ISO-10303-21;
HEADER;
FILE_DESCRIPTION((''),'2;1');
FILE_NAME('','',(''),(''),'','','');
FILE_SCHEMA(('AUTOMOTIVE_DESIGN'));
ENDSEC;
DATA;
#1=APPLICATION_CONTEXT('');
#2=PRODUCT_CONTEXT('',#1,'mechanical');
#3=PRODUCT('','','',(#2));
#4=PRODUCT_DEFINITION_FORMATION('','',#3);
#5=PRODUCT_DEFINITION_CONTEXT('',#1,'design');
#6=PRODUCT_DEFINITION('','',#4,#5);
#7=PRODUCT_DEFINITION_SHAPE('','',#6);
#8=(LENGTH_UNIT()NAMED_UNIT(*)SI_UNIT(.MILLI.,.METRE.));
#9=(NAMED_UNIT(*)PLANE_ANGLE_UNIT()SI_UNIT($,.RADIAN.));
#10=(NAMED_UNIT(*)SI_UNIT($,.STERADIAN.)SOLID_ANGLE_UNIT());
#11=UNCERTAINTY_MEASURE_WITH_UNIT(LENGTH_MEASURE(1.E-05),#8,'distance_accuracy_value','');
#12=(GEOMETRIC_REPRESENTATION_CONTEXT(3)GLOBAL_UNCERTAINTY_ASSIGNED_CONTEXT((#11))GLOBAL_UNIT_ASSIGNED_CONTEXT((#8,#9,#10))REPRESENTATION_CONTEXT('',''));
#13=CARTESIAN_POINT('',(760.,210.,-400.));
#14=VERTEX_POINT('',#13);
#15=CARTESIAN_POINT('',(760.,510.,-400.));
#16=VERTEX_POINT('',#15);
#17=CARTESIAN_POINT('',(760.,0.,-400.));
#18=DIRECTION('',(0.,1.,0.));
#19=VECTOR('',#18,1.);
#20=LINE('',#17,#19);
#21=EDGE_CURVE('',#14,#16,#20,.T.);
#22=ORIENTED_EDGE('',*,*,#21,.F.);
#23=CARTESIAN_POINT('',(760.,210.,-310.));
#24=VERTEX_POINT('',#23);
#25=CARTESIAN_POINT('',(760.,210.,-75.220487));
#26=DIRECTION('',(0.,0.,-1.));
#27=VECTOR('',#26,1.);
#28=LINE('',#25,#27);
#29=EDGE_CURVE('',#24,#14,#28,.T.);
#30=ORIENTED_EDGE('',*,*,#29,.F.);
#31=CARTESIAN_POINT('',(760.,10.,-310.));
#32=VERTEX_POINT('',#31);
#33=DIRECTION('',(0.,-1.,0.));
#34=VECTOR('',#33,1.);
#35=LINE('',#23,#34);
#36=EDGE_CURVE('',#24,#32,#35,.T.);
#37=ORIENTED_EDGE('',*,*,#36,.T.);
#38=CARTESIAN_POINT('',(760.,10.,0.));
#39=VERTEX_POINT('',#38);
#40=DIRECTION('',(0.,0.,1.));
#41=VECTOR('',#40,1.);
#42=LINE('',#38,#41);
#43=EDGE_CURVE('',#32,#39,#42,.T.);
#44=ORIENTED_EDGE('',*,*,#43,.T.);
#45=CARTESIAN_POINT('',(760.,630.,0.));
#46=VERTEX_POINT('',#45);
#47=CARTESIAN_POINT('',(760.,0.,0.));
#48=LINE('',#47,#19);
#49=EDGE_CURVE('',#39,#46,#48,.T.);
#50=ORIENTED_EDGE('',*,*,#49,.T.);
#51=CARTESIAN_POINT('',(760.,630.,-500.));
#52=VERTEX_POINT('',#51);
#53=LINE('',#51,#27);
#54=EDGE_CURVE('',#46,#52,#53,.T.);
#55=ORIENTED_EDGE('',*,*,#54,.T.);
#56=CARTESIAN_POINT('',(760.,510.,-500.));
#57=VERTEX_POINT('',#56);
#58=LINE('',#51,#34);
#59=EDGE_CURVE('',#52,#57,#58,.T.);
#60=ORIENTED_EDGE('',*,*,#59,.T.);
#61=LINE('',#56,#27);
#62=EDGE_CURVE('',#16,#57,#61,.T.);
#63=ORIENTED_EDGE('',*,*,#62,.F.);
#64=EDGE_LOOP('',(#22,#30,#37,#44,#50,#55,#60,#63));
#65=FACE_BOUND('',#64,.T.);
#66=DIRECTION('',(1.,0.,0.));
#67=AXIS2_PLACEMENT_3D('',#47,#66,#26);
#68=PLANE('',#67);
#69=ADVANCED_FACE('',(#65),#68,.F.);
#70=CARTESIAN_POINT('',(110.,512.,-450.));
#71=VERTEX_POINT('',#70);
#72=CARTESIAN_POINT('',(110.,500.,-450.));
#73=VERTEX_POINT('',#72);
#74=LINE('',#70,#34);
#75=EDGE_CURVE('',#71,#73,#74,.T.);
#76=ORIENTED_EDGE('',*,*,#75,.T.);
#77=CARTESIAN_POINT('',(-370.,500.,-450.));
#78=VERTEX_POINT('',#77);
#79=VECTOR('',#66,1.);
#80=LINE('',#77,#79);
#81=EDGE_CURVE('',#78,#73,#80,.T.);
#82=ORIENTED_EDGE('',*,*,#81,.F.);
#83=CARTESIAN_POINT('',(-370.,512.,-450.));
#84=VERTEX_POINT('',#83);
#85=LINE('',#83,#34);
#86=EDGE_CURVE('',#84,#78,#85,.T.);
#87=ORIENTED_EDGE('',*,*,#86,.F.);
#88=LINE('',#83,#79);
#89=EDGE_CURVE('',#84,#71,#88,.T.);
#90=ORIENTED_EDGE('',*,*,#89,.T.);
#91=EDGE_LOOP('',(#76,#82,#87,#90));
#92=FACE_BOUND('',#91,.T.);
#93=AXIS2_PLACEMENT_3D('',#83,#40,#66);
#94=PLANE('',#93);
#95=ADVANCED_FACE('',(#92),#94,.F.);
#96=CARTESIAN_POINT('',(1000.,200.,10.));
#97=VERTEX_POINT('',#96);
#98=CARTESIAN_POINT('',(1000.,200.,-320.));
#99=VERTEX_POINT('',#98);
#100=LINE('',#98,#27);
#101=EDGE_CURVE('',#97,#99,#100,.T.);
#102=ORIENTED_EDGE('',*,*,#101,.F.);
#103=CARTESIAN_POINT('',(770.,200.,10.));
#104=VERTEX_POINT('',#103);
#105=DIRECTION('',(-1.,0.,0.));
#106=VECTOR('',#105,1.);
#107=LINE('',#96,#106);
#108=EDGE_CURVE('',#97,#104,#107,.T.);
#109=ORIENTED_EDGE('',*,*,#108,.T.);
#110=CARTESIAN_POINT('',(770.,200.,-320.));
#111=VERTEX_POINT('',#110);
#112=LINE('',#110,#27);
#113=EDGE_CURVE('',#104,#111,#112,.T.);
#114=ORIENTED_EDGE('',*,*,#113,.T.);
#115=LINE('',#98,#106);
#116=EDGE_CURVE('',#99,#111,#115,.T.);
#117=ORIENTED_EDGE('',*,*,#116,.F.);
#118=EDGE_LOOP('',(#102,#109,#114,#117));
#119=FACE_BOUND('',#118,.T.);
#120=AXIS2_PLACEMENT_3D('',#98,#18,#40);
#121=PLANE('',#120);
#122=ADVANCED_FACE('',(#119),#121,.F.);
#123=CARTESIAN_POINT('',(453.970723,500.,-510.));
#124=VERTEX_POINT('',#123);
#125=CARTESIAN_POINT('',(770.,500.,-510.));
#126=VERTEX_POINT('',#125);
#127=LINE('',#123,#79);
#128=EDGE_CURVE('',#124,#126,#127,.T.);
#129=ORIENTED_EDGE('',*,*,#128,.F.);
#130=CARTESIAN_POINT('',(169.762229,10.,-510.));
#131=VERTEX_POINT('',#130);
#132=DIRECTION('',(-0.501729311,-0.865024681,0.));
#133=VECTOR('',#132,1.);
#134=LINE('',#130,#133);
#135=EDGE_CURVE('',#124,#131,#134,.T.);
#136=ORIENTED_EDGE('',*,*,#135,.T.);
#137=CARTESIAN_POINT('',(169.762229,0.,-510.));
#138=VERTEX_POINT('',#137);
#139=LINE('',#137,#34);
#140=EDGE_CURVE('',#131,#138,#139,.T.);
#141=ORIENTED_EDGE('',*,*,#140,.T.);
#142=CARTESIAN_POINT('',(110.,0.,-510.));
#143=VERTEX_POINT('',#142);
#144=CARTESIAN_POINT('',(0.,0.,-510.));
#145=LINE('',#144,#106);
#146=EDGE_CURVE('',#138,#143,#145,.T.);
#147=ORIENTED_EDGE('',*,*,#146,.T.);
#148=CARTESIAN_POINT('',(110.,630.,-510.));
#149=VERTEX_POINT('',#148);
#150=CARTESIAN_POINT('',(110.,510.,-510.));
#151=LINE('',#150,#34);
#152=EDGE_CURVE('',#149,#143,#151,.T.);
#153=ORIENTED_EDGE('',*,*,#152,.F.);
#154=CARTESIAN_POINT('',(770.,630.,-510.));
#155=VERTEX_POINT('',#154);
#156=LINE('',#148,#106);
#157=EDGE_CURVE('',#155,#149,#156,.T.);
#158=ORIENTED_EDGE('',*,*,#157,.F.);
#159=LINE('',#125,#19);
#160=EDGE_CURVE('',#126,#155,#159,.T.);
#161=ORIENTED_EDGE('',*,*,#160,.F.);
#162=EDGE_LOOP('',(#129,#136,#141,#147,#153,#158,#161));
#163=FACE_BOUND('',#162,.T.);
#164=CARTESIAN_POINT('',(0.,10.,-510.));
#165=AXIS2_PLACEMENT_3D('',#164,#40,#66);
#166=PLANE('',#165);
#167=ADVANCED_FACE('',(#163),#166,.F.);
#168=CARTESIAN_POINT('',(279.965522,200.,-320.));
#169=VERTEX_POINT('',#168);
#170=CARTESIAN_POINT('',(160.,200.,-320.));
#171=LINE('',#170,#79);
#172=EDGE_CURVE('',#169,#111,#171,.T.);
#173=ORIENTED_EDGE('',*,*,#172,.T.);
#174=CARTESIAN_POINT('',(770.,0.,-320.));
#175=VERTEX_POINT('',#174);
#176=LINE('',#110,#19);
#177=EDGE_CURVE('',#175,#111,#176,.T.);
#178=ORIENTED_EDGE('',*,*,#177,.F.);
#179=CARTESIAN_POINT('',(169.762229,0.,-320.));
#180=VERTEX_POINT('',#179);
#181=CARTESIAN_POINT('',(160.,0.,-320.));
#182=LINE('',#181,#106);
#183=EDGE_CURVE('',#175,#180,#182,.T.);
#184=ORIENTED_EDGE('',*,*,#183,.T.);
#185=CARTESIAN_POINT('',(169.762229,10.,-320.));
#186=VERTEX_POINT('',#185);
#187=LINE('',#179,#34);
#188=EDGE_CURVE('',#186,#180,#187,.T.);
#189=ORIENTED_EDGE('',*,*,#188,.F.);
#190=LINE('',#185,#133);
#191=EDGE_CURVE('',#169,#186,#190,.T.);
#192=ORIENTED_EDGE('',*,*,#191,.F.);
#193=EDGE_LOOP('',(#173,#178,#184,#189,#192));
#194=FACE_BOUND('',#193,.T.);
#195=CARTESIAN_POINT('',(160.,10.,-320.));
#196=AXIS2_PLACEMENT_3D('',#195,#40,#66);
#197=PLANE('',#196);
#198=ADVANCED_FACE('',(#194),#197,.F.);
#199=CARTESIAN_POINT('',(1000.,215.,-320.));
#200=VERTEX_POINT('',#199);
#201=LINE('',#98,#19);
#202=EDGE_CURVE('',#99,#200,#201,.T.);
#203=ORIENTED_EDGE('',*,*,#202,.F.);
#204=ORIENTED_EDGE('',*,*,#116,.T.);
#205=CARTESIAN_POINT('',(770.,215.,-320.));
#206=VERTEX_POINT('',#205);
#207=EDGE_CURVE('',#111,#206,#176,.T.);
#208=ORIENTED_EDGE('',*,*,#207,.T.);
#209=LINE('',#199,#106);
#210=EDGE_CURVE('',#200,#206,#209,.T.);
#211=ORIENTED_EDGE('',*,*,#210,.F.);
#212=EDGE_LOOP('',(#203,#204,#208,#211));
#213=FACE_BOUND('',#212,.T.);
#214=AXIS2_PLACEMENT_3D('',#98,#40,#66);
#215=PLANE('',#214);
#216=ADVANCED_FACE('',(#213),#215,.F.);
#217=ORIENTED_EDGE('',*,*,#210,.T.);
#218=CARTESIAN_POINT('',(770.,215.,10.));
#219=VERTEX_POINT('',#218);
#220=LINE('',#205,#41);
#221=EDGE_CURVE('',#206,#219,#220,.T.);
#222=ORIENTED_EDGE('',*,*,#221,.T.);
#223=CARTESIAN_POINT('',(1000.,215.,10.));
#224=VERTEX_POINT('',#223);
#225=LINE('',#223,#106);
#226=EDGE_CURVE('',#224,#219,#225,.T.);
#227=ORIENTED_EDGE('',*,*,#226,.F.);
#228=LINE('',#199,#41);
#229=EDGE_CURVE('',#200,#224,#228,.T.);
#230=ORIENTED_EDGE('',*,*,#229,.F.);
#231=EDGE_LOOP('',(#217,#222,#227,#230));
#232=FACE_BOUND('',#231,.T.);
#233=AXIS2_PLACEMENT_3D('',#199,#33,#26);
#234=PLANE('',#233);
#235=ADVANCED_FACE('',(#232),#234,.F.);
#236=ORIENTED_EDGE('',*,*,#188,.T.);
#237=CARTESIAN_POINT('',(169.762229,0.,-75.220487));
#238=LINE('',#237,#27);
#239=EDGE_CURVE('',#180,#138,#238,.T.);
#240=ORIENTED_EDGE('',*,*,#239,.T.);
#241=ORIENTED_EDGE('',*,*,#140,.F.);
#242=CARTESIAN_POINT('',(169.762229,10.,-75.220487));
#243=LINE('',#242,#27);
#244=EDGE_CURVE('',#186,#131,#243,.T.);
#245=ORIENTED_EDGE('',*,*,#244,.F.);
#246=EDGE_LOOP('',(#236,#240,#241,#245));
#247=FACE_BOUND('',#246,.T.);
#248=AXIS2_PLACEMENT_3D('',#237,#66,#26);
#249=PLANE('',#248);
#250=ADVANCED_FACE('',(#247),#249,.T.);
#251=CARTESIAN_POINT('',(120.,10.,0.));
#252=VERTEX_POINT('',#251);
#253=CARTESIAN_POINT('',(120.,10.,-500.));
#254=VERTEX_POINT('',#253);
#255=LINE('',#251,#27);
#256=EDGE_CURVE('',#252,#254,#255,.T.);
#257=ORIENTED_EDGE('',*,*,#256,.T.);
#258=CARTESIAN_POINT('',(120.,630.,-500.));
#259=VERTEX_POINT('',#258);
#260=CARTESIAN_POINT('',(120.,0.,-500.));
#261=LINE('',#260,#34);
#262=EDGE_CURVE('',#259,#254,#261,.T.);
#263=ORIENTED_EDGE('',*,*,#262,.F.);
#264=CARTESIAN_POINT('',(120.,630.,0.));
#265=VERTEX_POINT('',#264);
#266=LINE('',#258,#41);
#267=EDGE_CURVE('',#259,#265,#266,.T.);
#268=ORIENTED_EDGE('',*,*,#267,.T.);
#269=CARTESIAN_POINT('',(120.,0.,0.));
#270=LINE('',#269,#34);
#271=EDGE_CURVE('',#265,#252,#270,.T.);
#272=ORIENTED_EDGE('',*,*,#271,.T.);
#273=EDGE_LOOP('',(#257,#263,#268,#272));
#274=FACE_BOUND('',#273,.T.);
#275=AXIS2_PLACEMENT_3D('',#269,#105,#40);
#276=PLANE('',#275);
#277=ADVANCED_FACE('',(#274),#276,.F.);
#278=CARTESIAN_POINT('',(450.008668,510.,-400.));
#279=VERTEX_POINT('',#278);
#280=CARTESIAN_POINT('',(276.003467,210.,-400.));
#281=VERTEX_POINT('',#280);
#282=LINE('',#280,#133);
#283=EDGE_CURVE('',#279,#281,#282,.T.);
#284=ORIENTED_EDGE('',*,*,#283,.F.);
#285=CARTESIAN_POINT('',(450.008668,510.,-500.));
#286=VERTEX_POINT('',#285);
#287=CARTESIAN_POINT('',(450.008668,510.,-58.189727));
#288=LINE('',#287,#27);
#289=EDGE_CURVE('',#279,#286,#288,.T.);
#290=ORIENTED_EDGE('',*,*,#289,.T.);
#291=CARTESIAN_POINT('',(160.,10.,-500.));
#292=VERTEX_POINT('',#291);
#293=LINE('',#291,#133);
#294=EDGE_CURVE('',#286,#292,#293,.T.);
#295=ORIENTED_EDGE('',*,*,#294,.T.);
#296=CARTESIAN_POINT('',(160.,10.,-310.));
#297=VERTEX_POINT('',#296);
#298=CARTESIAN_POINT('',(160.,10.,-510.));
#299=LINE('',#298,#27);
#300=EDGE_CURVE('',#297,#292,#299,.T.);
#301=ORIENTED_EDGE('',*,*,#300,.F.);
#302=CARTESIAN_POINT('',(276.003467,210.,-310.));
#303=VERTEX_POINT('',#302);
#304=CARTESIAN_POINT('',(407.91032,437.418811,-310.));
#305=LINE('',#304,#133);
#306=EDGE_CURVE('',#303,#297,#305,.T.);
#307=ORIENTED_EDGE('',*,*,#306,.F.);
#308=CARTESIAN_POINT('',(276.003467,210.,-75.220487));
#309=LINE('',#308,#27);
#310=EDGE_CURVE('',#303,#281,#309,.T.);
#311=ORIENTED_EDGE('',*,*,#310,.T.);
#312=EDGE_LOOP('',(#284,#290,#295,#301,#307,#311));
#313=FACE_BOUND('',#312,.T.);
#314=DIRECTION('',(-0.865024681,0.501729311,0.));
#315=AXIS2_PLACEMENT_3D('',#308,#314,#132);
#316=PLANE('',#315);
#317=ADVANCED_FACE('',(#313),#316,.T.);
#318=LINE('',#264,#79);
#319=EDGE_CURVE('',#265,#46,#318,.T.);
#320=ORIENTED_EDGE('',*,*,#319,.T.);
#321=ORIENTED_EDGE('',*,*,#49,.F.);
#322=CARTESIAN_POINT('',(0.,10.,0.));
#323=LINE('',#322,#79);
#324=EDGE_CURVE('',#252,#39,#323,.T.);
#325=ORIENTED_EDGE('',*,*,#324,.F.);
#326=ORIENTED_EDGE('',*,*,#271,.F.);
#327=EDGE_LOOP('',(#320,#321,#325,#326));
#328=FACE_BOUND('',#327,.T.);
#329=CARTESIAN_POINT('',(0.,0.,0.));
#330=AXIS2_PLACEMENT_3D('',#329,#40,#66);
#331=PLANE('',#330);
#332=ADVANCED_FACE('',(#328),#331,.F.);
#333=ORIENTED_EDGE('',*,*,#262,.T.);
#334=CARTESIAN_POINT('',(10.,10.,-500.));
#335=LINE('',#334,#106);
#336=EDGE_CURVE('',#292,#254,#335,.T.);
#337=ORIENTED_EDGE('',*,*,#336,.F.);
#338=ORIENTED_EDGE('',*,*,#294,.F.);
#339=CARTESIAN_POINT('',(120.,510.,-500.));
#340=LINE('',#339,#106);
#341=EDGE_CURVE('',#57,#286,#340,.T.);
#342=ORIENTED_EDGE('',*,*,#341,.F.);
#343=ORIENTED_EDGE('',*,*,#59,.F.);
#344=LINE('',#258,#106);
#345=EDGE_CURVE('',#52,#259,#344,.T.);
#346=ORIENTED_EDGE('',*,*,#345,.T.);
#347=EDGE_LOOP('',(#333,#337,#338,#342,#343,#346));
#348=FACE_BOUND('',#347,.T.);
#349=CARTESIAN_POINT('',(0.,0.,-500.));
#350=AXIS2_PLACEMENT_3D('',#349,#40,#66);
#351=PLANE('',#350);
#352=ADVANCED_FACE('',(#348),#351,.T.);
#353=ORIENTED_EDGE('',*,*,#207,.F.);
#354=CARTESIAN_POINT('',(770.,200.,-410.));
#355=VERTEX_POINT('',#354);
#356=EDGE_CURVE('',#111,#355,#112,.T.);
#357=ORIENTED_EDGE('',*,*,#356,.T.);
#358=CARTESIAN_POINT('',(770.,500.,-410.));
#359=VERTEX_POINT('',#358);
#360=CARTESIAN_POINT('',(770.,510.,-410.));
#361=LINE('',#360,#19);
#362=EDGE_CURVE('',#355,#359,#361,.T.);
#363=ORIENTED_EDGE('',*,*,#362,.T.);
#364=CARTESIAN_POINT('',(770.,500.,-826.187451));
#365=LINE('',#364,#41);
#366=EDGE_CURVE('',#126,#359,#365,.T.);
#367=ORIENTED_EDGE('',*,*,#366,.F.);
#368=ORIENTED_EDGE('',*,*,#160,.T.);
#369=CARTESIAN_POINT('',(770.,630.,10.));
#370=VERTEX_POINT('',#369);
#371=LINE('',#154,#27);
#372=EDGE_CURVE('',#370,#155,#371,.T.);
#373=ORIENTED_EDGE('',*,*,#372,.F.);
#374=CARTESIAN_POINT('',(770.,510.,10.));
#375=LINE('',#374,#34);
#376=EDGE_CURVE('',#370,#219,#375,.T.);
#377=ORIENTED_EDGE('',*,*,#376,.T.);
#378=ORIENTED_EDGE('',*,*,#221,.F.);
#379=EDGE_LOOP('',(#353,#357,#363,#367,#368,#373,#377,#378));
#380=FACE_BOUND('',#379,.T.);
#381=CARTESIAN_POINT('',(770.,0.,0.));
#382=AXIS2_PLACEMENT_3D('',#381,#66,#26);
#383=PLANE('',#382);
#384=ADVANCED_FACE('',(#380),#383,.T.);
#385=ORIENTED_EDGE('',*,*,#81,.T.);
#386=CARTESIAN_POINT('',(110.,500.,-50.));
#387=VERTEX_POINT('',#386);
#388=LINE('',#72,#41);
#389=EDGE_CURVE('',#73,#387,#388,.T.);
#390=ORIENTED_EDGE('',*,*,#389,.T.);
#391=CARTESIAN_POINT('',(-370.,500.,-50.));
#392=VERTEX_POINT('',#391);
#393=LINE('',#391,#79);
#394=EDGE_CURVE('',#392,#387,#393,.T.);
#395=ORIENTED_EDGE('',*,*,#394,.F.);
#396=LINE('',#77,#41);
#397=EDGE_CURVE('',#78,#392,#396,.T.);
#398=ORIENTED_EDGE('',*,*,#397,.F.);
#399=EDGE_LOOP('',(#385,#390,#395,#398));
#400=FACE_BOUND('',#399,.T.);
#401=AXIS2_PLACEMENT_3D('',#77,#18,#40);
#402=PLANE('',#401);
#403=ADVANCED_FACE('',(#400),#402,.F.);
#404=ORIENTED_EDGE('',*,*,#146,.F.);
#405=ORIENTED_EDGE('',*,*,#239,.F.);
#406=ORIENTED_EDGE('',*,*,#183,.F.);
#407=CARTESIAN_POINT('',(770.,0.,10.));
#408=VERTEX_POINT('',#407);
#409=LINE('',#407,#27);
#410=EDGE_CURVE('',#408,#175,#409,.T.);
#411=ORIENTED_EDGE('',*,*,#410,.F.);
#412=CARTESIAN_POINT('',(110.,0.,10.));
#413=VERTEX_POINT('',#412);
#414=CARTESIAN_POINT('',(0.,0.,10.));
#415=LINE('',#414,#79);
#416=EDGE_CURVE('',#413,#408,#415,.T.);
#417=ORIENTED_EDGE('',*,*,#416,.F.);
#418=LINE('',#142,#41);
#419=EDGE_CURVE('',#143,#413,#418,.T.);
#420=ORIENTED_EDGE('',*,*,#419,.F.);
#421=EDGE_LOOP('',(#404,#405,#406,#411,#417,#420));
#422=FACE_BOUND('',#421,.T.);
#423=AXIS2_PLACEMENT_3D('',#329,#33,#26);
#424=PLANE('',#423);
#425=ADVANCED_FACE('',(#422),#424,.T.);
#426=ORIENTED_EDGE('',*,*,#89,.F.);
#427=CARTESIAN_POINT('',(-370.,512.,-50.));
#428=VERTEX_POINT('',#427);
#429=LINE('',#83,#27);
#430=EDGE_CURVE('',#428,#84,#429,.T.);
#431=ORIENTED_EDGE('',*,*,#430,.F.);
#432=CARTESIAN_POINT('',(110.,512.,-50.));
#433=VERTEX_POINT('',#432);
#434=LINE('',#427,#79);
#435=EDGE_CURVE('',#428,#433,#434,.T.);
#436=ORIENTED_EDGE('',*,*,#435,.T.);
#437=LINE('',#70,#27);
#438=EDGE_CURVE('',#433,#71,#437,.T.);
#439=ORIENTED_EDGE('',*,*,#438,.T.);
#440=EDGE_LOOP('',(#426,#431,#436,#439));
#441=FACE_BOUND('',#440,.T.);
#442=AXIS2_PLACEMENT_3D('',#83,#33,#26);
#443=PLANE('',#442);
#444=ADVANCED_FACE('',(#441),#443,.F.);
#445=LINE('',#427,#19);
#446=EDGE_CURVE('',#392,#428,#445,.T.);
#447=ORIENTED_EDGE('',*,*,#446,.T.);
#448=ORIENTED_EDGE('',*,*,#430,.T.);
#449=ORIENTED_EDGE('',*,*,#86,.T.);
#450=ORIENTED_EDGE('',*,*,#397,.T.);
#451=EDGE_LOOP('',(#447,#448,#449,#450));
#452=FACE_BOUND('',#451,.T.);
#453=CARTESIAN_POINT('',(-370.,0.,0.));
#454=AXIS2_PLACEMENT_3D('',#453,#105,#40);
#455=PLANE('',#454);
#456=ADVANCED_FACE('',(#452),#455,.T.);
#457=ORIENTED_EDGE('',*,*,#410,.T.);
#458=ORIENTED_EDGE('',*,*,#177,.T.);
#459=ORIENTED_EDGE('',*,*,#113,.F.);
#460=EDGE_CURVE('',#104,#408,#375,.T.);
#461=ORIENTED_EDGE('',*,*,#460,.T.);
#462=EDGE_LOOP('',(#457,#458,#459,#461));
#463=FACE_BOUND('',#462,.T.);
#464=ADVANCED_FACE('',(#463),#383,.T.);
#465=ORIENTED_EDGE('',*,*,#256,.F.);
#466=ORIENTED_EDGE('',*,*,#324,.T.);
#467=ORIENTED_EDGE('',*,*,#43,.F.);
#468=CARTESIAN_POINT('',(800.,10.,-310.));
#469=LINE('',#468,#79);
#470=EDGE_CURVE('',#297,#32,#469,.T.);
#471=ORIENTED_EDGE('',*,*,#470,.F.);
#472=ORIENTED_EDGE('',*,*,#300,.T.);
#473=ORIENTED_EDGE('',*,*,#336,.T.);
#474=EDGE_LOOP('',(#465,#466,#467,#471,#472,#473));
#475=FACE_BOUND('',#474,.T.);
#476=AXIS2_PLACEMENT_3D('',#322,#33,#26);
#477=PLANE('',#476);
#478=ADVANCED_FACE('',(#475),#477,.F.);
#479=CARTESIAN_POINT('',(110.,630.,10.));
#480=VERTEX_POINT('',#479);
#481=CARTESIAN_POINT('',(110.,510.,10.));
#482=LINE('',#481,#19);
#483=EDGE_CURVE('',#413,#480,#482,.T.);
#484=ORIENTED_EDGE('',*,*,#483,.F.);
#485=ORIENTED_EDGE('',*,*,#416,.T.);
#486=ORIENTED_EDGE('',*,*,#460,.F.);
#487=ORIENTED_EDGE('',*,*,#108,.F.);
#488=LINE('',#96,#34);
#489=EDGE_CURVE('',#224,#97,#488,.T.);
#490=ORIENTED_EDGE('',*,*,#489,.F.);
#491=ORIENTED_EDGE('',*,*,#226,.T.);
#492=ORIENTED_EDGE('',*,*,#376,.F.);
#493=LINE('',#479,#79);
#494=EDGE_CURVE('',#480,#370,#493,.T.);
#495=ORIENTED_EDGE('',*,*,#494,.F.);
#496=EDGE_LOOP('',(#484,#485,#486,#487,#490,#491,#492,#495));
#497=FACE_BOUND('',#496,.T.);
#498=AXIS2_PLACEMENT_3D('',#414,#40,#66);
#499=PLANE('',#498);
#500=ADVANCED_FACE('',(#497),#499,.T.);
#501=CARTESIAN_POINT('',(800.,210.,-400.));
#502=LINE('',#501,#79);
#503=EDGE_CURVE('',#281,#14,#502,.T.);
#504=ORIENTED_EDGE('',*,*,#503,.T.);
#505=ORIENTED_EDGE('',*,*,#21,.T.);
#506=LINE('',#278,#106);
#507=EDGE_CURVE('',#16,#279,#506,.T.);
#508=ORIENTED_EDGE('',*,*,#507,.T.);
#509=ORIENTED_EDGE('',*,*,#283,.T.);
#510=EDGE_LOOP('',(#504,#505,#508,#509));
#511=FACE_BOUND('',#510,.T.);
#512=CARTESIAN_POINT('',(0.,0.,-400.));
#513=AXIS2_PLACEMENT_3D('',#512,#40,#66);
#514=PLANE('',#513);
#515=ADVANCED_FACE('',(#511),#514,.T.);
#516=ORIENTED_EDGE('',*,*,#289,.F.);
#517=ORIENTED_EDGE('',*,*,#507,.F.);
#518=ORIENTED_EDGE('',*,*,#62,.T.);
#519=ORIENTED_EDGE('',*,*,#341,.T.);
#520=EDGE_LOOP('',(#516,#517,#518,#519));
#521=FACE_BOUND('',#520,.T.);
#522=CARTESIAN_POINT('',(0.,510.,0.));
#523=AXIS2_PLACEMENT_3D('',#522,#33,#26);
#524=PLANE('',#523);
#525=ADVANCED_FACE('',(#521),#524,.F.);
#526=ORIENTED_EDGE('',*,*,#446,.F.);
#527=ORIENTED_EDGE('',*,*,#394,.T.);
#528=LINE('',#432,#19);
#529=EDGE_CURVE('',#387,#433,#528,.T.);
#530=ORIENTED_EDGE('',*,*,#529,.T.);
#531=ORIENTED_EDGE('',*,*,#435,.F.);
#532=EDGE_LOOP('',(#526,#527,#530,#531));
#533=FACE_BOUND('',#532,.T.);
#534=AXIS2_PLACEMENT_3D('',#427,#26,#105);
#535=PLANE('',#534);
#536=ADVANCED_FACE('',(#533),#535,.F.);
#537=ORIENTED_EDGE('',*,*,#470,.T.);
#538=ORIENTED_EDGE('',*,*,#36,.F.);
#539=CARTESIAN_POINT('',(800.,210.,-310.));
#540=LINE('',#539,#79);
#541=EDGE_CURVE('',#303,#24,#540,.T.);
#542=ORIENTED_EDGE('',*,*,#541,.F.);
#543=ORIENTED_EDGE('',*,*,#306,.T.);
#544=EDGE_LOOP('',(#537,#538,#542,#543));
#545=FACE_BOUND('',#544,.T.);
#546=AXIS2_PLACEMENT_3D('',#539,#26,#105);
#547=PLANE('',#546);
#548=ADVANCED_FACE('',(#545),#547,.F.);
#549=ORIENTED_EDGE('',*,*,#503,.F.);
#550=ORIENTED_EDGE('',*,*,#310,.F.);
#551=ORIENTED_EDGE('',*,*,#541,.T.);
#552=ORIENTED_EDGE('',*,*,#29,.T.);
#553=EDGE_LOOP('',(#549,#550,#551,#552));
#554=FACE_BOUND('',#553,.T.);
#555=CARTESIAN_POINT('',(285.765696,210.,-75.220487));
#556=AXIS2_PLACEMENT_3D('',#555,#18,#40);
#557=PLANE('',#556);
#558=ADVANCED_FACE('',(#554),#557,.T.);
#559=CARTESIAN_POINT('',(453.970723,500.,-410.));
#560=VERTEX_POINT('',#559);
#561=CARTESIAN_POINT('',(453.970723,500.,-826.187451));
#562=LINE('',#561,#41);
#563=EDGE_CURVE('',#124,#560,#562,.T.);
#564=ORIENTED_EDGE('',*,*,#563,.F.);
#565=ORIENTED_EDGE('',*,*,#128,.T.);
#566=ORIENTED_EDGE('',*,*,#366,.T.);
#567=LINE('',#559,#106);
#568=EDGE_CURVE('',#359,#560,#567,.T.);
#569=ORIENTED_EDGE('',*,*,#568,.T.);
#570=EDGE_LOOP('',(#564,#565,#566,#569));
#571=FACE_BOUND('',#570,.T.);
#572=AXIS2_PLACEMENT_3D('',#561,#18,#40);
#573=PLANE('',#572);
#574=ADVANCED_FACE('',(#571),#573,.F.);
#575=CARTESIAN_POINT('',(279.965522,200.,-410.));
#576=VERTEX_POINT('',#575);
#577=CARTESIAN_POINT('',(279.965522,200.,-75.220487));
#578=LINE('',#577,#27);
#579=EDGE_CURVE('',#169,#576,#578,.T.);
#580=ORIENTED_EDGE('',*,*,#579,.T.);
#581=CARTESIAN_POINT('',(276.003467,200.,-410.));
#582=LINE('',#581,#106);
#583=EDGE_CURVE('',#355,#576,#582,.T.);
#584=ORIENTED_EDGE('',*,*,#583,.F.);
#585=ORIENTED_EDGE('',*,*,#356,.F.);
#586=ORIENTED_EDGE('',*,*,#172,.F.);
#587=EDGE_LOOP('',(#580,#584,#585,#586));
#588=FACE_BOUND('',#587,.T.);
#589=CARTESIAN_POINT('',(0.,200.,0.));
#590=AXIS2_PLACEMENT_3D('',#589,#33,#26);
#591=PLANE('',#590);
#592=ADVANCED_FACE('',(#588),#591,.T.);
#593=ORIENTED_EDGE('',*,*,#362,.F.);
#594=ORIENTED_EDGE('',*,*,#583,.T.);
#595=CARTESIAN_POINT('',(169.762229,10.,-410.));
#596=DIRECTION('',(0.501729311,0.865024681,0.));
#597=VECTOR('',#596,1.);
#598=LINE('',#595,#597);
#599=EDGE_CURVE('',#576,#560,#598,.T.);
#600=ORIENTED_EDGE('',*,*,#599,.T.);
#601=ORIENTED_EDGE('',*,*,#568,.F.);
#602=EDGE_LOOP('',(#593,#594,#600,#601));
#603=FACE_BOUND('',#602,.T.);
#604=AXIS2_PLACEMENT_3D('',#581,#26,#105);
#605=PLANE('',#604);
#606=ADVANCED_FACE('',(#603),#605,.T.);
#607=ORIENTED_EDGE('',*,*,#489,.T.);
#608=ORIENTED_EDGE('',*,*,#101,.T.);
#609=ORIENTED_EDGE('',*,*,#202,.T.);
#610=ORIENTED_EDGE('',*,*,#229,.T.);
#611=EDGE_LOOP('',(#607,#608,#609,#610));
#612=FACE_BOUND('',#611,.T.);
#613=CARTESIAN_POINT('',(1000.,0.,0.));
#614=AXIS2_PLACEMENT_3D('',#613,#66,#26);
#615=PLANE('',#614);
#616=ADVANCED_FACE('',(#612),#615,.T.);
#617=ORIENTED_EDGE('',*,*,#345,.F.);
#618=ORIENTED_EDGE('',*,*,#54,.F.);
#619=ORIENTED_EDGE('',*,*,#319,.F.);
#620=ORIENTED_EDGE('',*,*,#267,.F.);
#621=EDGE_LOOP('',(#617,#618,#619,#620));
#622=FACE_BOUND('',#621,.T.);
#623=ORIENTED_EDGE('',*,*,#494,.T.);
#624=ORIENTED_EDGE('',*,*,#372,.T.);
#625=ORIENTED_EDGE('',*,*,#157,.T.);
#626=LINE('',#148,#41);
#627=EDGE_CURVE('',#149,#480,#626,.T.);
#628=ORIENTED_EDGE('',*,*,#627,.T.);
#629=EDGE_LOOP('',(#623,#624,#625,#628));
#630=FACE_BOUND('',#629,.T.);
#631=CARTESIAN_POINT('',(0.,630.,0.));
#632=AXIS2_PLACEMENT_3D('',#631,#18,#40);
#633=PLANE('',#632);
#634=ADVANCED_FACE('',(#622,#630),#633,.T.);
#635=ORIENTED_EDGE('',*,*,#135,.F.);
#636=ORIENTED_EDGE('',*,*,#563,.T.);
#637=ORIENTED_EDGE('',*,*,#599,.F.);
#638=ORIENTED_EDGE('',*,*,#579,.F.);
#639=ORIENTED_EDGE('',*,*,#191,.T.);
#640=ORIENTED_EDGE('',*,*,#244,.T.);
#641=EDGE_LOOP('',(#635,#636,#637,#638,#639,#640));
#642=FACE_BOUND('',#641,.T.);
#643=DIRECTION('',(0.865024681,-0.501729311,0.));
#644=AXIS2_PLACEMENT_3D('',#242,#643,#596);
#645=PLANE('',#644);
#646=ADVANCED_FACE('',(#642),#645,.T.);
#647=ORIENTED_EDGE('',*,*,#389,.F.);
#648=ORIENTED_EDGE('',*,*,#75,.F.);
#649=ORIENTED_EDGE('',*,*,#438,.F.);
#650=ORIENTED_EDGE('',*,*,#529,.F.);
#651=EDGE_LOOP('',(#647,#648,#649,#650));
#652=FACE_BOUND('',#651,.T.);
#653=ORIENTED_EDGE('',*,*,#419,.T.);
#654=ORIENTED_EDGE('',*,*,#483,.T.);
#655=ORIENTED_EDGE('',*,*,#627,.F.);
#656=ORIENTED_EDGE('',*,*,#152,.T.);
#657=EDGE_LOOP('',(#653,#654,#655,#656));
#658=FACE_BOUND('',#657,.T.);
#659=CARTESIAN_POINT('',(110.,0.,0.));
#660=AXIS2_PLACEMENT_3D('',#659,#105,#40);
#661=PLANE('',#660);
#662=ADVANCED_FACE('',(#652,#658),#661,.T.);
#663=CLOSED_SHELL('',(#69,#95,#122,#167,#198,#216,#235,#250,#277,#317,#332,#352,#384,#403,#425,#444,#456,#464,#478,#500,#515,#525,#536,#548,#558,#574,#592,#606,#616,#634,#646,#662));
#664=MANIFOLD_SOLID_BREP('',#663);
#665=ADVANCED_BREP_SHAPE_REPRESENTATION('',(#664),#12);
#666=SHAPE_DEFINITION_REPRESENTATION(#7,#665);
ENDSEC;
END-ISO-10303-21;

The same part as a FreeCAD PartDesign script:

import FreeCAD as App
import Part
import Sketcher


def add_polygon(sketch, points):
    """Adds a closed chain of lines whose ends are joined by coincident constraints."""
    first, n = sketch.GeometryCount, len(points)
    for a, b in zip(points, points[1:] + points[:1]):
        sketch.addGeometry(Part.LineSegment(App.Vector(*a, 0), App.Vector(*b, 0)), False)
    for i in range(n):
        sketch.addConstraint(Sketcher.Constraint("Coincident", first + i, 2, first + (i + 1) % n, 1))

doc = App.newDocument("Part")
params = doc.addObject("Spreadsheet::Sheet", "Params")
for row, (alias, value) in enumerate([
    ("sketch1_width", "800 mm"),
    ("sketch1_width2", "640 mm"),
    ("sketch1_height", "510 mm"),
    ("sketch1_height2", "320 mm"),
    ("pad1_length", "10 mm"),
    ("sketch2_width", "10 mm"),
    ("sketch2_height", "510 mm"),
    ("pad2_length", "500 mm"),
    ("sketch3_width", "150 mm"),
    ("sketch3_height", "500 mm"),
    ("pad3_length", "10 mm"),
    ("sketch4_height", "10 mm"),
    ("pad4_length", "190 mm"),
    ("sketch5_width", "640 mm"),
    ("sketch5_height", "10 mm"),
    ("pad5_length", "200 mm"),
    ("sketch6_height", "200 mm"),
    ("pocket1_length", "20 mm"),
    ("sketch7_height", "100 mm"),
    ("pad6_length", "10 mm"),
    ("pad7_length", "100 mm"),
    ("sketch9_height", "300 mm"),
    ("pad8_length", "10 mm"),
    ("sketch10_width", "200 mm"),
    ("sketch10_width2", "310 mm"),
    ("sketch10_height", "320 mm"),
    ("sketch10_height2", "90 mm"),
    ("pad9_length", "10 mm"),
    ("sketch11_width", "810 mm"),
    ("sketch11_height", "510 mm"),
    ("pad10_length", "10 mm"),
    ("sketch12_width", "510 mm"),
    ("sketch12_height", "520 mm"),
    ("pocket2_length", "120 mm"),
    ("sketch13_width", "510 mm"),
    ("sketch13_height", "520 mm"),
    ("pocket3_length", "50 mm"),
    ("sketch14_width", "510 mm"),
    ("sketch14_width2", "200 mm"),
    ("sketch14_height", "420 mm"),
    ("sketch14_height2", "330 mm"),
    ("pad11_length", "10 mm"),
    ("sketch15_width", "510 mm"),
    ("sketch15_height", "520 mm"),
    ("pad12_length", "10 mm"),
    ("sketch16_height", "10 mm"),
    ("pad13_length", "100 mm"),
    ("sketch17_width", "660 mm"),
    ("sketch17_width2", "640 mm"),
    ("sketch17_height", "520 mm"),
    ("sketch17_height2", "500 mm"),
    ("pad14_length", "120 mm"),
    ("sketch18_width", "12 mm"),
    ("sketch18_height", "400 mm"),
    ("pad15_length", "480 mm"),
    ("sketch19_width", "15 mm"),
    ("sketch19_height", "330 mm"),
    ("pad16_length", "230 mm"),
], start=1):
    params.set(f"A{row}", alias)
    params.set(f"B{row}", "=" + value)
    params.setAlias(f"B{row}", alias)

body = doc.addObject("PartDesign::Body", "Body")

sketch1 = body.newObject("Sketcher::SketchObject", "Sketch")
sketch1.AttachmentSupport = (doc.getObject("XZ_Plane"), [""])
sketch1.MapMode = "FlatFace"
add_polygon(sketch1, [(0, -510), (0, 0), (800, 0), (800, -320), (160, -320), (160, -510)])
sketch1.addConstraint([
    Sketcher.Constraint("Vertical", 0),
    Sketcher.Constraint("Horizontal", 1),
    Sketcher.Constraint("Vertical", 2),
    Sketcher.Constraint("Horizontal", 3),
    Sketcher.Constraint("Vertical", 4),
    Sketcher.Constraint("Horizontal", 5),
    Sketcher.Constraint("Coincident", 0, 2, -1, 1),
    Sketcher.Constraint("DistanceX", 1, 1, 1, 2, 800.0),
    Sketcher.Constraint("DistanceX", 3, 2, 3, 1, 640.0),
    Sketcher.Constraint("DistanceY", 0, 1, 0, 2, 510.0),
    Sketcher.Constraint("DistanceY", 2, 2, 2, 1, 320.0),
])
sketch1.setExpression("Constraints[13]", "Params.sketch1_width")
sketch1.setExpression("Constraints[14]", "Params.sketch1_width2")
sketch1.setExpression("Constraints[15]", "Params.sketch1_height")
sketch1.setExpression("Constraints[16]", "Params.sketch1_height2")
pad1 = body.newObject("PartDesign::Pad", "Pad")
pad1.Profile = sketch1
pad1.setExpression("Length", "Params.pad1_length")
pad1.Reversed = True

sketch2 = body.newObject("Sketcher::SketchObject", "Sketch001")
sketch2.AttachmentSupport = (doc.getObject("XZ_Plane"), [""])
sketch2.MapMode = "FlatFace"
sketch2.AttachmentOffset = App.Placement(App.Vector(0, 0, -10), App.Rotation())
add_polygon(sketch2, [(0, -510), (0, 0), (10, 0), (10, -510)])
sketch2.addConstraint([
    Sketcher.Constraint("Vertical", 0),
    Sketcher.Constraint("Horizontal", 1),
    Sketcher.Constraint("Vertical", 2),
    Sketcher.Constraint("Horizontal", 3),
    Sketcher.Constraint("Coincident", 0, 2, -1, 1),
    Sketcher.Constraint("DistanceX", 1, 1, 1, 2, 10.0),
    Sketcher.Constraint("DistanceY", 0, 1, 0, 2, 510.0),
])
sketch2.setExpression("Constraints[9]", "Params.sketch2_width")
sketch2.setExpression("Constraints[10]", "Params.sketch2_height")
pad2 = body.newObject("PartDesign::Pad", "Pad001")
pad2.Profile = sketch2
pad2.setExpression("Length", "Params.pad2_length")
pad2.Reversed = True

sketch3 = body.newObject("Sketcher::SketchObject", "Sketch002")
sketch3.AttachmentSupport = (doc.getObject("XY_Plane"), [""])
sketch3.MapMode = "FlatFace"
sketch3.AttachmentOffset = App.Placement(App.Vector(0, 0, -510), App.Rotation())
add_polygon(sketch3, [(10, 10), (10, 510), (450, 510), (160, 10)])
sketch3.addConstraint([
    Sketcher.Constraint("Vertical", 0),
    Sketcher.Constraint("Horizontal", 1),
    Sketcher.Constraint("Horizontal", 3),
    Sketcher.Constraint("DistanceX", 3, 2, 3, 1, 150.0),
    Sketcher.Constraint("DistanceY", 0, 1, 0, 2, 500.0),
    Sketcher.Constraint("DistanceX", -1, 1, 0, 2, 10.0),
    Sketcher.Constraint("DistanceY", -1, 1, 0, 2, 510.0),
    Sketcher.Constraint("Distance", 2, 578.01819),
])
sketch3.setExpression("Constraints[7]", "Params.sketch3_width")
sketch3.setExpression("Constraints[8]", "Params.sketch3_height")
pad3 = body.newObject("PartDesign::Pad", "Pad002")
pad3.Profile = sketch3
pad3.setExpression("Length", "Params.pad3_length")

sketch4 = body.newObject("Sketcher::SketchObject", "Sketch003")
sketch4.AttachmentSupport = (doc.getObject("XY_Plane"), [""])
sketch4.MapMode = "FlatFace"
sketch4.AttachmentOffset = App.Placement(App.Vector(0, 0, -510), App.Rotation())
add_polygon(sketch4, [(160, 10), (276, 210), (286, 210), (170, 10), (170, 0), (160, 0)])
sketch4.addConstraint([
    Sketcher.Constraint("Horizontal", 1),
    Sketcher.Constraint("Vertical", 3),
    Sketcher.Constraint("Horizontal", 4),
    Sketcher.Constraint("Vertical", 5),
    Sketcher.Constraint("PointOnObject", 3, 2, -1),
    Sketcher.Constraint("Parallel", 0, 2),
    Sketcher.Constraint("Horizontal", 2, 2, 5, 2),
    Sketcher.Constraint("DistanceY", 3, 2, 3, 1, 10.0),
    Sketcher.Constraint("DistanceY", -1, 1, 0, 2, 210.0),
    Sketcher.Constraint("DistanceX", -1, 1, 4, 2, 160.0),
    Sketcher.Constraint("DistanceX", 1, 1, 1, 2, 9.762229),
    Sketcher.Constraint("DistanceX", 2, 2, 0, 2, 106.241239),
])
sketch4.setExpression("Constraints[13]", "Params.sketch4_height")
pad4 = body.newObject("PartDesign::Pad", "Pad003")
pad4.Profile = sketch4
pad4.setExpression("Length", "Params.pad4_length")

sketch5 = body.newObject("Sketcher::SketchObject", "Sketch004")
sketch5.AttachmentSupport = (doc.getObject("XZ_Plane"), [""])
sketch5.MapMode = "FlatFace"
sketch5.AttachmentOffset = App.Placement(App.Vector(0, 0, -10), App.Rotation())
add_polygon(sketch5, [(160, -320), (160, -310), (800, -310), (800, -320)])
sketch5.addConstraint([
    Sketcher.Constraint("Vertical", 0),
    Sketcher.Constraint("Horizontal", 1),
    Sketcher.Constraint("Vertical", 2),
    Sketcher.Constraint("Horizontal", 3),
    Sketcher.Constraint("DistanceX", 1, 1, 1, 2, 640.0),
    Sketcher.Constraint("DistanceY", 0, 1, 0, 2, 10.0),
    Sketcher.Constraint("DistanceX", -1, 1, 0, 2, 160.0),
    Sketcher.Constraint("DistanceY", 0, 2, -1, 1, 310.0),
])
sketch5.setExpression("Constraints[8]", "Params.sketch5_width")
sketch5.setExpression("Constraints[9]", "Params.sketch5_height")
pad5 = body.newObject("PartDesign::Pad", "Pad004")
pad5.Profile = sketch5
pad5.setExpression("Length", "Params.pad5_length")
pad5.Reversed = True

sketch6 = body.newObject("Sketcher::SketchObject", "Sketch005")
sketch6.AttachmentSupport = (doc.getObject("XY_Plane"), [""])
sketch6.MapMode = "FlatFace"
sketch6.AttachmentOffset = App.Placement(App.Vector(0, 0, -320), App.Rotation())
add_polygon(sketch6, [(160, 210), (276, 210), (160, 10)])
sketch6.addConstraint([
    Sketcher.Constraint("Horizontal", 0),
    Sketcher.Constraint("Vertical", 2),
    Sketcher.Constraint("DistanceY", 2, 1, 2, 2, 200.0),
    Sketcher.Constraint("DistanceY", -1, 1, 0, 2, 210.0),
    Sketcher.Constraint("DistanceX", -1, 1, 1, 2, 160.0),
    Sketcher.Constraint("DistanceX", 0, 1, 0, 2, 116.003467),
])
sketch6.setExpression("Constraints[5]", "Params.sketch6_height")
pocket1 = body.newObject("PartDesign::Pocket", "Pocket")
pocket1.Profile = sketch6
pocket1.setExpression("Length", "Params.pocket1_length")
pocket1.Reversed = True

sketch7 = body.newObject("Sketcher::SketchObject", "Sketch006")
sketch7.AttachmentSupport = (doc.getObject("XZ_Plane"), [""])
sketch7.MapMode = "FlatFace"
sketch7.AttachmentOffset = App.Placement(App.Vector(0, 0, -210), App.Rotation())
add_polygon(sketch7, [(276, -410), (276, -310), (800, -310), (800, -410)])
sketch7.addConstraint([
    Sketcher.Constraint("Vertical", 0),
    Sketcher.Constraint("Horizontal", 1),
    Sketcher.Constraint("Vertical", 2),
    Sketcher.Constraint("Horizontal", 3),
    Sketcher.Constraint("DistanceY", 0, 1, 0, 2, 100.0),
    Sketcher.Constraint("DistanceY", 0, 2, -1, 1, 310.0),
    Sketcher.Constraint("DistanceX", -1, 1, 1, 2, 800.0),
    Sketcher.Constraint("DistanceX", 1, 1, 1, 2, 523.996533),
])
sketch7.setExpression("Constraints[8]", "Params.sketch7_height")
pad6 = body.newObject("PartDesign::Pad", "Pad005")
pad6.Profile = sketch7
pad6.setExpression("Length", "Params.pad6_length")

sketch8 = body.newObject("Sketcher::SketchObject", "Sketch007")
sketch8.AttachmentSupport = (doc.getObject("XY_Plane"), [""])
sketch8.MapMode = "FlatFace"
sketch8.AttachmentOffset = App.Placement(App.Vector(0, 0, -510), App.Rotation())
add_polygon(sketch8, [(276, 210), (450, 510), (460, 510), (286, 210)])
sketch8.addConstraint([
    Sketcher.Constraint("Horizontal", 1),
    Sketcher.Constraint("Horizontal", 3),
    Sketcher.Constraint("Parallel", 0, 2),
    Sketcher.Constraint("DistanceY", -1, 1, 0, 2, 510.0),
    Sketcher.Constraint("DistanceY", -1, 1, 2, 2, 210.0),
    Sketcher.Constraint("DistanceX", 1, 1, 1, 2, 9.762229),
    Sketcher.Constraint("DistanceX", 2, 2, 1, 2, 174.005201),
    Sketcher.Constraint("DistanceX", -1, 1, 0, 2, 450.008668),
])
pad7 = body.newObject("PartDesign::Pad", "Pad006")
pad7.Profile = sketch8
pad7.setExpression("Length", "Params.pad7_length")

sketch9 = body.newObject("Sketcher::SketchObject", "Sketch008")
sketch9.AttachmentSupport = (doc.getObject("XY_Plane"), [""])
sketch9.MapMode = "FlatFace"
sketch9.AttachmentOffset = App.Placement(App.Vector(0, 0, -410), App.Rotation())
add_polygon(sketch9, [(450, 510), (276, 210), (800, 210), (800, 510)])
sketch9.addConstraint([
    Sketcher.Constraint("Horizontal", 1),
    Sketcher.Constraint("Vertical", 2),
    Sketcher.Constraint("Horizontal", 3),
    Sketcher.Constraint("DistanceY", 2, 1, 2, 2, 300.0),
    Sketcher.Constraint("DistanceY", -1, 1, 0, 2, 210.0),
    Sketcher.Constraint("DistanceX", -1, 1, 1, 2, 800.0),
    Sketcher.Constraint("DistanceX", 0, 2, 3, 2, 174.005201),
    Sketcher.Constraint("DistanceX", 1, 1, 1, 2, 523.996533),
])
sketch9.setExpression("Constraints[7]", "Params.sketch9_height")
pad8 = body.newObject("PartDesign::Pad", "Pad007")
pad8.Profile = sketch9
pad8.setExpression("Length", "Params.pad8_length")

sketch10 = body.newObject("Sketcher::SketchObject", "Sketch009")
sketch10.AttachmentSupport = (doc.getObject("YZ_Plane"), [""])
sketch10.MapMode = "FlatFace"
sketch10.AttachmentOffset = App.Placement(App.Vector(0, 0, 800), App.Rotation())
add_polygon(sketch10, [(0, 0), (0, -320), (200, -320), (200, -410), (510, -410), (510, 0)])
sketch10.addConstraint([
    Sketcher.Constraint("Vertical", 0),
    Sketcher.Constraint("Horizontal", 1),
    Sketcher.Constraint("Vertical", 2),
    Sketcher.Constraint("Horizontal", 3),
    Sketcher.Constraint("Vertical", 4),
    Sketcher.Constraint("Horizontal", 5),
    Sketcher.Constraint("Coincident", 5, 2, -1, 1),
    Sketcher.Constraint("DistanceX", 1, 1, 1, 2, 200.0),
    Sketcher.Constraint("DistanceX", 3, 1, 3, 2, 310.0),
    Sketcher.Constraint("DistanceY", 0, 2, 0, 1, 320.0),
    Sketcher.Constraint("DistanceY", 2, 2, 2, 1, 90.0),
])
sketch10.setExpression("Constraints[13]", "Params.sketch10_width")
sketch10.setExpression("Constraints[14]", "Params.sketch10_width2")
sketch10.setExpression("Constraints[15]", "Params.sketch10_height")
sketch10.setExpression("Constraints[16]", "Params.sketch10_height2")
pad9 = body.newObject("PartDesign::Pad", "Pad008")
pad9.Profile = sketch10
pad9.setExpression("Length", "Params.pad9_length")

sketch11 = body.newObject("Sketcher::SketchObject", "Sketch010")
sketch11.AttachmentSupport = (doc.getObject("XY_Plane"), [""])
sketch11.MapMode = "FlatFace"
add_polygon(sketch11, [(0, 510), (0, 0), (810, 0), (810, 510)])
sketch11.addConstraint([
    Sketcher.Constraint("Vertical", 0),
    Sketcher.Constraint("Horizontal", 1),
    Sketcher.Constraint("Vertical", 2),
    Sketcher.Constraint("Horizontal", 3),
    Sketcher.Constraint("Coincident", 0, 2, -1, 1),
    Sketcher.Constraint("DistanceX", 1, 1, 1, 2, 810.0),
    Sketcher.Constraint("DistanceY", 0, 2, 0, 1, 510.0),
])
sketch11.setExpression("Constraints[9]", "Params.sketch11_width")
sketch11.setExpression("Constraints[10]", "Params.sketch11_height")
pad10 = body.newObject("PartDesign::Pad", "Pad009")
pad10.Profile = sketch11
pad10.setExpression("Length", "Params.pad10_length")

sketch12 = body.newObject("Sketcher::SketchObject", "Sketch011")
sketch12.AttachmentSupport = (doc.getObject("YZ_Plane"), [""])
sketch12.MapMode = "FlatFace"
add_polygon(sketch12, [(510, -510), (0, -510), (0, 10), (510, 10)])
sketch12.addConstraint([
    Sketcher.Constraint("Horizontal", 0),
    Sketcher.Constraint("Vertical", 1),
    Sketcher.Constraint("Horizontal", 2),
    Sketcher.Constraint("Vertical", 3),
    Sketcher.Constraint("PointOnObject", 0, 2, -2),
    Sketcher.Constraint("DistanceX", 0, 2, 0, 1, 510.0),
    Sketcher.Constraint("DistanceY", 1, 1, 1, 2, 520.0),
    Sketcher.Constraint("DistanceY", 0, 2, -1, 1, 510.0),
])
sketch12.setExpression("Constraints[9]", "Params.sketch12_width")
sketch12.setExpression("Constraints[10]", "Params.sketch12_height")
pocket2 = body.newObject("PartDesign::Pocket", "Pocket001")
pocket2.Profile = sketch12
pocket2.setExpression("Length", "Params.pocket2_length")
pocket2.Reversed = True

sketch13 = body.newObject("Sketcher::SketchObject", "Sketch012")
sketch13.AttachmentSupport = (doc.getObject("YZ_Plane"), [""])
sketch13.MapMode = "FlatFace"
sketch13.AttachmentOffset = App.Placement(App.Vector(0, 0, 810), App.Rotation())
add_polygon(sketch13, [(510, 10), (0, 10), (0, -510), (510, -510)])
sketch13.addConstraint([
    Sketcher.Constraint("Horizontal", 0),
    Sketcher.Constraint("Vertical", 1),
    Sketcher.Constraint("Horizontal", 2),
    Sketcher.Constraint("Vertical", 3),
    Sketcher.Constraint("PointOnObject", 0, 2, -2),
    Sketcher.Constraint("DistanceX", 0, 2, 0, 1, 510.0),
    Sketcher.Constraint("DistanceY", 1, 2, 1, 1, 520.0),
    Sketcher.Constraint("DistanceY", -1, 1, 0, 2, 10.0),
])
sketch13.setExpression("Constraints[9]", "Params.sketch13_width")
sketch13.setExpression("Constraints[10]", "Params.sketch13_height")
pocket3 = body.newObject("PartDesign::Pocket", "Pocket002")
pocket3.Profile = sketch13
pocket3.setExpression("Length", "Params.pocket3_length")

sketch14 = body.newObject("Sketcher::SketchObject", "Sketch013")
sketch14.AttachmentSupport = (doc.getObject("YZ_Plane"), [""])
sketch14.MapMode = "FlatFace"
sketch14.AttachmentOffset = App.Placement(App.Vector(0, 0, 760), App.Rotation())
add_polygon(sketch14, [(510, -410), (510, 10), (0, 10), (0, -320), (200, -320), (200, -410)])
sketch14.addConstraint([
    Sketcher.Constraint("Vertical", 0),
    Sketcher.Constraint("Horizontal", 1),
    Sketcher.Constraint("Vertical", 2),
    Sketcher.Constraint("Horizontal", 3),
    Sketcher.Constraint("Vertical", 4),
    Sketcher.Constraint("Horizontal", 5),
    Sketcher.Constraint("PointOnObject", 1, 2, -2),
    Sketcher.Constraint("DistanceX", 1, 2, 1, 1, 510.0),
    Sketcher.Constraint("DistanceX", 3, 1, 3, 2, 200.0),
    Sketcher.Constraint("DistanceY", 0, 1, 0, 2, 420.0),
    Sketcher.Constraint("DistanceY", 2, 2, 2, 1, 330.0),
    Sketcher.Constraint("DistanceY", -1, 1, 0, 2, 10.0),
])
sketch14.setExpression("Constraints[13]", "Params.sketch14_width")
sketch14.setExpression("Constraints[14]", "Params.sketch14_width2")
sketch14.setExpression("Constraints[15]", "Params.sketch14_height")
sketch14.setExpression("Constraints[16]", "Params.sketch14_height2")
pad11 = body.newObject("PartDesign::Pad", "Pad010")
pad11.Profile = sketch14
pad11.setExpression("Length", "Params.pad11_length")

sketch15 = body.newObject("Sketcher::SketchObject", "Sketch014")
sketch15.AttachmentSupport = (doc.getObject("YZ_Plane"), [""])
sketch15.MapMode = "FlatFace"
sketch15.AttachmentOffset = App.Placement(App.Vector(0, 0, 120), App.Rotation())
add_polygon(sketch15, [(510, -510), (0, -510), (0, 10), (510, 10)])
sketch15.addConstraint([
    Sketcher.Constraint("Horizontal", 0),
    Sketcher.Constraint("Vertical", 1),
    Sketcher.Constraint("Horizontal", 2),
    Sketcher.Constraint("Vertical", 3),
    Sketcher.Constraint("PointOnObject", 0, 2, -2),
    Sketcher.Constraint("DistanceX", 0, 2, 0, 1, 510.0),
    Sketcher.Constraint("DistanceY", 1, 1, 1, 2, 520.0),
    Sketcher.Constraint("DistanceY", 0, 2, -1, 1, 510.0),
])
sketch15.setExpression("Constraints[9]", "Params.sketch15_width")
sketch15.setExpression("Constraints[10]", "Params.sketch15_height")
pad12 = body.newObject("PartDesign::Pad", "Pad011")
pad12.Profile = sketch15
pad12.setExpression("Length", "Params.pad12_length")
pad12.Reversed = True

sketch16 = body.newObject("Sketcher::SketchObject", "Sketch015")
sketch16.AttachmentSupport = (doc.getObject("XY_Plane"), [""])
sketch16.MapMode = "FlatFace"
sketch16.AttachmentOffset = App.Placement(App.Vector(0, 0, -410), App.Rotation())
add_polygon(sketch16, [(460, 510), (770, 510), (770, 500), (454, 500)])
sketch16.addConstraint([
    Sketcher.Constraint("Horizontal", 0),
    Sketcher.Constraint("Vertical", 1),
    Sketcher.Constraint("Horizontal", 2),
    Sketcher.Constraint("DistanceY", 1, 2, 1, 1, 10.0),
    Sketcher.Constraint("DistanceX", -1, 1, 0, 2, 770.0),
    Sketcher.Constraint("DistanceY", -1, 1, 0, 2, 510.0),
    Sketcher.Constraint("DistanceX", 0, 1, 0, 2, 310.229104),
    Sketcher.Constraint("DistanceX", 2, 2, 2, 1, 316.029277),
])
sketch16.setExpression("Constraints[7]", "Params.sketch16_height")
pad13 = body.newObject("PartDesign::Pad", "Pad012")
pad13.Profile = sketch16
pad13.setExpression("Length", "Params.pad13_length")
pad13.Reversed = True

sketch17 = body.newObject("Sketcher::SketchObject", "Sketch016")
sketch17.AttachmentSupport = (doc.getObject("XZ_Plane"), [""])
sketch17.MapMode = "FlatFace"
sketch17.AttachmentOffset = App.Placement(App.Vector(0, 0, -510), App.Rotation())
add_polygon(sketch17, [(110, -510), (110, 10), (770, 10), (770, -510)])
add_polygon(sketch17, [(760, 0), (120, 0), (120, -500), (760, -500)])
sketch17.addConstraint([
    Sketcher.Constraint("Vertical", 0),
    Sketcher.Constraint("Horizontal", 1),
    Sketcher.Constraint("Vertical", 2),
    Sketcher.Constraint("Horizontal", 3),
    Sketcher.Constraint("Horizontal", 4),
    Sketcher.Constraint("Vertical", 5),
    Sketcher.Constraint("Horizontal", 6),
    Sketcher.Constraint("Vertical", 7),
    Sketcher.Constraint("PointOnObject", 4, 2, -1),
    Sketcher.Constraint("DistanceX", 1, 1, 1, 2, 660.0),
    Sketcher.Constraint("DistanceX", 4, 2, 4, 1, 640.0),
    Sketcher.Constraint("DistanceY", 0, 1, 0, 2, 520.0),
    Sketcher.Constraint("DistanceY", 5, 2, 5, 1, 500.0),
    Sketcher.Constraint("DistanceX", -1, 1, 0, 2, 110.0),
    Sketcher.Constraint("DistanceY", -1, 1, 0, 2, 10.0),
    Sketcher.Constraint("DistanceX", -1, 1, 4, 2, 120.0),
])
sketch17.setExpression("Constraints[17]", "Params.sketch17_width")
sketch17.setExpression("Constraints[18]", "Params.sketch17_width2")
sketch17.setExpression("Constraints[19]", "Params.sketch17_height")
sketch17.setExpression("Constraints[20]", "Params.sketch17_height2")
pad14 = body.newObject("PartDesign::Pad", "Pad013")
pad14.Profile = sketch17
pad14.setExpression("Length", "Params.pad14_length")
pad14.Reversed = True

sketch18 = body.newObject("Sketcher::SketchObject", "Sketch017")
sketch18.AttachmentSupport = (doc.getObject("YZ_Plane"), [""])
sketch18.MapMode = "FlatFace"
sketch18.AttachmentOffset = App.Placement(App.Vector(0, 0, 110), App.Rotation())
add_polygon(sketch18, [(512, -450), (500, -450), (500, -50), (512, -50)])
sketch18.addConstraint([
    Sketcher.Constraint("Horizontal", 0),
    Sketcher.Constraint("Vertical", 1),
    Sketcher.Constraint("Horizontal", 2),
    Sketcher.Constraint("Vertical", 3),
    Sketcher.Constraint("DistanceX", 0, 2, 0, 1, 12.0),
    Sketcher.Constraint("DistanceY", 1, 1, 1, 2, 400.0),
    Sketcher.Constraint("DistanceX", -1, 1, 0, 2, 500.0),
    Sketcher.Constraint("DistanceY", 0, 2, -1, 1, 450.0),
])
sketch18.setExpression("Constraints[8]", "Params.sketch18_width")
sketch18.setExpression("Constraints[9]", "Params.sketch18_height")
pad15 = body.newObject("PartDesign::Pad", "Pad014")
pad15.Profile = sketch18
pad15.setExpression("Length", "Params.pad15_length")
pad15.Reversed = True

sketch19 = body.newObject("Sketcher::SketchObject", "Sketch018")
sketch19.AttachmentSupport = (doc.getObject("YZ_Plane"), [""])
sketch19.MapMode = "FlatFace"
sketch19.AttachmentOffset = App.Placement(App.Vector(0, 0, 770), App.Rotation())
add_polygon(sketch19, [(215, 10), (200, 10), (200, -320), (215, -320)])
sketch19.addConstraint([
    Sketcher.Constraint("Horizontal", 0),
    Sketcher.Constraint("Vertical", 1),
    Sketcher.Constraint("Horizontal", 2),
    Sketcher.Constraint("Vertical", 3),
    Sketcher.Constraint("DistanceX", 0, 2, 0, 1, 15.0),
    Sketcher.Constraint("DistanceY", 1, 2, 1, 1, 330.0),
    Sketcher.Constraint("DistanceX", -1, 1, 0, 2, 200.0),
    Sketcher.Constraint("DistanceY", -1, 1, 0, 2, 10.0),
])
sketch19.setExpression("Constraints[8]", "Params.sketch19_width")
sketch19.setExpression("Constraints[9]", "Params.sketch19_height")
pad16 = body.newObject("PartDesign::Pad", "Pad015")
pad16.Profile = sketch19
pad16.setExpression("Length", "Params.pad16_length")

doc.recompute()
